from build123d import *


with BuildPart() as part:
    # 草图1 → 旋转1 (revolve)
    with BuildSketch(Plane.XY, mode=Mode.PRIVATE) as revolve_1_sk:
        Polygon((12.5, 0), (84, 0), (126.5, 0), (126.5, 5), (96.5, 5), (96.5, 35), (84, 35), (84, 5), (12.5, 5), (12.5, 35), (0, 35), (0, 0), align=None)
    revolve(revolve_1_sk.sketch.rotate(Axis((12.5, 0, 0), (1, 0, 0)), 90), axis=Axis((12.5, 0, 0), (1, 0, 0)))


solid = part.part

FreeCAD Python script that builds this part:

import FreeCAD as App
import Part
import Sketcher
from FreeCAD import Vector


def add_polygon(sketch, points):
    """Adds a closed chain of lines whose ends are joined by coincident constraints."""
    first, n = sketch.GeometryCount, len(points)
    for a, b in zip(points, points[1:] + points[:1]):
        sketch.addGeometry(Part.LineSegment(App.Vector(*a, 0), App.Vector(*b, 0)), False)
    for i in range(n):
        sketch.addConstraint(Sketcher.Constraint("Coincident", first + i, 2, first + (i + 1) % n, 1))

doc = App.newDocument("Part")
body = doc.addObject("PartDesign::Body", "Body")

# Sketch on XY plane
sketch1 = body.newObject("Sketcher::SketchObject", "Sketch")
sketch1.AttachmentSupport = (doc.getObject("XY_Plane"), [""])
sketch1.MapMode = "FlatFace"
add_polygon(sketch1, [(126, 0), (126, 5), (96, 5), (96, 35), (84, 35), (84, 5), (12, 5), (12, 35), (0, 35), (0, 0)])  # lines 0-9
sketch1.addConstraint([
    Sketcher.Constraint("Vertical", 0),
    Sketcher.Constraint("Horizontal", 1),
    Sketcher.Constraint("Vertical", 2),
    Sketcher.Constraint("Horizontal", 3),
    Sketcher.Constraint("Vertical", 4),
    Sketcher.Constraint("Horizontal", 5),
    Sketcher.Constraint("Vertical", 6),
    Sketcher.Constraint("Horizontal", 7),
    Sketcher.Constraint("Vertical", 8),
    Sketcher.Constraint("Horizontal", 9),
    Sketcher.Constraint("Coincident", 8, 2, -1, 1),
    Sketcher.Constraint("Horizontal", 1, 2, 4, 2),
    Sketcher.Constraint("Horizontal", 3, 2, 6, 2),
    Sketcher.Constraint("Equal", 3, 7),
    Sketcher.Constraint("Equal", 1, 2),
    Sketcher.Constraint("DistanceX", 1, 2, 1, 1, 30.0),
    Sketcher.Constraint("DistanceY", 0, 1, 0, 2, 5.0),
    Sketcher.Constraint("DistanceX", 3, 2, 3, 1, 12.5),
    Sketcher.Constraint("DistanceX", 5, 2, 5, 1, 71.5),
])
revolution = body.newObject("PartDesign::Revolution", "Revolution")
revolution.Profile = sketch1
revolution.ReferenceAxis = (sketch1, ["H_Axis"])
revolution.Angle = 360

doc.recompute()
